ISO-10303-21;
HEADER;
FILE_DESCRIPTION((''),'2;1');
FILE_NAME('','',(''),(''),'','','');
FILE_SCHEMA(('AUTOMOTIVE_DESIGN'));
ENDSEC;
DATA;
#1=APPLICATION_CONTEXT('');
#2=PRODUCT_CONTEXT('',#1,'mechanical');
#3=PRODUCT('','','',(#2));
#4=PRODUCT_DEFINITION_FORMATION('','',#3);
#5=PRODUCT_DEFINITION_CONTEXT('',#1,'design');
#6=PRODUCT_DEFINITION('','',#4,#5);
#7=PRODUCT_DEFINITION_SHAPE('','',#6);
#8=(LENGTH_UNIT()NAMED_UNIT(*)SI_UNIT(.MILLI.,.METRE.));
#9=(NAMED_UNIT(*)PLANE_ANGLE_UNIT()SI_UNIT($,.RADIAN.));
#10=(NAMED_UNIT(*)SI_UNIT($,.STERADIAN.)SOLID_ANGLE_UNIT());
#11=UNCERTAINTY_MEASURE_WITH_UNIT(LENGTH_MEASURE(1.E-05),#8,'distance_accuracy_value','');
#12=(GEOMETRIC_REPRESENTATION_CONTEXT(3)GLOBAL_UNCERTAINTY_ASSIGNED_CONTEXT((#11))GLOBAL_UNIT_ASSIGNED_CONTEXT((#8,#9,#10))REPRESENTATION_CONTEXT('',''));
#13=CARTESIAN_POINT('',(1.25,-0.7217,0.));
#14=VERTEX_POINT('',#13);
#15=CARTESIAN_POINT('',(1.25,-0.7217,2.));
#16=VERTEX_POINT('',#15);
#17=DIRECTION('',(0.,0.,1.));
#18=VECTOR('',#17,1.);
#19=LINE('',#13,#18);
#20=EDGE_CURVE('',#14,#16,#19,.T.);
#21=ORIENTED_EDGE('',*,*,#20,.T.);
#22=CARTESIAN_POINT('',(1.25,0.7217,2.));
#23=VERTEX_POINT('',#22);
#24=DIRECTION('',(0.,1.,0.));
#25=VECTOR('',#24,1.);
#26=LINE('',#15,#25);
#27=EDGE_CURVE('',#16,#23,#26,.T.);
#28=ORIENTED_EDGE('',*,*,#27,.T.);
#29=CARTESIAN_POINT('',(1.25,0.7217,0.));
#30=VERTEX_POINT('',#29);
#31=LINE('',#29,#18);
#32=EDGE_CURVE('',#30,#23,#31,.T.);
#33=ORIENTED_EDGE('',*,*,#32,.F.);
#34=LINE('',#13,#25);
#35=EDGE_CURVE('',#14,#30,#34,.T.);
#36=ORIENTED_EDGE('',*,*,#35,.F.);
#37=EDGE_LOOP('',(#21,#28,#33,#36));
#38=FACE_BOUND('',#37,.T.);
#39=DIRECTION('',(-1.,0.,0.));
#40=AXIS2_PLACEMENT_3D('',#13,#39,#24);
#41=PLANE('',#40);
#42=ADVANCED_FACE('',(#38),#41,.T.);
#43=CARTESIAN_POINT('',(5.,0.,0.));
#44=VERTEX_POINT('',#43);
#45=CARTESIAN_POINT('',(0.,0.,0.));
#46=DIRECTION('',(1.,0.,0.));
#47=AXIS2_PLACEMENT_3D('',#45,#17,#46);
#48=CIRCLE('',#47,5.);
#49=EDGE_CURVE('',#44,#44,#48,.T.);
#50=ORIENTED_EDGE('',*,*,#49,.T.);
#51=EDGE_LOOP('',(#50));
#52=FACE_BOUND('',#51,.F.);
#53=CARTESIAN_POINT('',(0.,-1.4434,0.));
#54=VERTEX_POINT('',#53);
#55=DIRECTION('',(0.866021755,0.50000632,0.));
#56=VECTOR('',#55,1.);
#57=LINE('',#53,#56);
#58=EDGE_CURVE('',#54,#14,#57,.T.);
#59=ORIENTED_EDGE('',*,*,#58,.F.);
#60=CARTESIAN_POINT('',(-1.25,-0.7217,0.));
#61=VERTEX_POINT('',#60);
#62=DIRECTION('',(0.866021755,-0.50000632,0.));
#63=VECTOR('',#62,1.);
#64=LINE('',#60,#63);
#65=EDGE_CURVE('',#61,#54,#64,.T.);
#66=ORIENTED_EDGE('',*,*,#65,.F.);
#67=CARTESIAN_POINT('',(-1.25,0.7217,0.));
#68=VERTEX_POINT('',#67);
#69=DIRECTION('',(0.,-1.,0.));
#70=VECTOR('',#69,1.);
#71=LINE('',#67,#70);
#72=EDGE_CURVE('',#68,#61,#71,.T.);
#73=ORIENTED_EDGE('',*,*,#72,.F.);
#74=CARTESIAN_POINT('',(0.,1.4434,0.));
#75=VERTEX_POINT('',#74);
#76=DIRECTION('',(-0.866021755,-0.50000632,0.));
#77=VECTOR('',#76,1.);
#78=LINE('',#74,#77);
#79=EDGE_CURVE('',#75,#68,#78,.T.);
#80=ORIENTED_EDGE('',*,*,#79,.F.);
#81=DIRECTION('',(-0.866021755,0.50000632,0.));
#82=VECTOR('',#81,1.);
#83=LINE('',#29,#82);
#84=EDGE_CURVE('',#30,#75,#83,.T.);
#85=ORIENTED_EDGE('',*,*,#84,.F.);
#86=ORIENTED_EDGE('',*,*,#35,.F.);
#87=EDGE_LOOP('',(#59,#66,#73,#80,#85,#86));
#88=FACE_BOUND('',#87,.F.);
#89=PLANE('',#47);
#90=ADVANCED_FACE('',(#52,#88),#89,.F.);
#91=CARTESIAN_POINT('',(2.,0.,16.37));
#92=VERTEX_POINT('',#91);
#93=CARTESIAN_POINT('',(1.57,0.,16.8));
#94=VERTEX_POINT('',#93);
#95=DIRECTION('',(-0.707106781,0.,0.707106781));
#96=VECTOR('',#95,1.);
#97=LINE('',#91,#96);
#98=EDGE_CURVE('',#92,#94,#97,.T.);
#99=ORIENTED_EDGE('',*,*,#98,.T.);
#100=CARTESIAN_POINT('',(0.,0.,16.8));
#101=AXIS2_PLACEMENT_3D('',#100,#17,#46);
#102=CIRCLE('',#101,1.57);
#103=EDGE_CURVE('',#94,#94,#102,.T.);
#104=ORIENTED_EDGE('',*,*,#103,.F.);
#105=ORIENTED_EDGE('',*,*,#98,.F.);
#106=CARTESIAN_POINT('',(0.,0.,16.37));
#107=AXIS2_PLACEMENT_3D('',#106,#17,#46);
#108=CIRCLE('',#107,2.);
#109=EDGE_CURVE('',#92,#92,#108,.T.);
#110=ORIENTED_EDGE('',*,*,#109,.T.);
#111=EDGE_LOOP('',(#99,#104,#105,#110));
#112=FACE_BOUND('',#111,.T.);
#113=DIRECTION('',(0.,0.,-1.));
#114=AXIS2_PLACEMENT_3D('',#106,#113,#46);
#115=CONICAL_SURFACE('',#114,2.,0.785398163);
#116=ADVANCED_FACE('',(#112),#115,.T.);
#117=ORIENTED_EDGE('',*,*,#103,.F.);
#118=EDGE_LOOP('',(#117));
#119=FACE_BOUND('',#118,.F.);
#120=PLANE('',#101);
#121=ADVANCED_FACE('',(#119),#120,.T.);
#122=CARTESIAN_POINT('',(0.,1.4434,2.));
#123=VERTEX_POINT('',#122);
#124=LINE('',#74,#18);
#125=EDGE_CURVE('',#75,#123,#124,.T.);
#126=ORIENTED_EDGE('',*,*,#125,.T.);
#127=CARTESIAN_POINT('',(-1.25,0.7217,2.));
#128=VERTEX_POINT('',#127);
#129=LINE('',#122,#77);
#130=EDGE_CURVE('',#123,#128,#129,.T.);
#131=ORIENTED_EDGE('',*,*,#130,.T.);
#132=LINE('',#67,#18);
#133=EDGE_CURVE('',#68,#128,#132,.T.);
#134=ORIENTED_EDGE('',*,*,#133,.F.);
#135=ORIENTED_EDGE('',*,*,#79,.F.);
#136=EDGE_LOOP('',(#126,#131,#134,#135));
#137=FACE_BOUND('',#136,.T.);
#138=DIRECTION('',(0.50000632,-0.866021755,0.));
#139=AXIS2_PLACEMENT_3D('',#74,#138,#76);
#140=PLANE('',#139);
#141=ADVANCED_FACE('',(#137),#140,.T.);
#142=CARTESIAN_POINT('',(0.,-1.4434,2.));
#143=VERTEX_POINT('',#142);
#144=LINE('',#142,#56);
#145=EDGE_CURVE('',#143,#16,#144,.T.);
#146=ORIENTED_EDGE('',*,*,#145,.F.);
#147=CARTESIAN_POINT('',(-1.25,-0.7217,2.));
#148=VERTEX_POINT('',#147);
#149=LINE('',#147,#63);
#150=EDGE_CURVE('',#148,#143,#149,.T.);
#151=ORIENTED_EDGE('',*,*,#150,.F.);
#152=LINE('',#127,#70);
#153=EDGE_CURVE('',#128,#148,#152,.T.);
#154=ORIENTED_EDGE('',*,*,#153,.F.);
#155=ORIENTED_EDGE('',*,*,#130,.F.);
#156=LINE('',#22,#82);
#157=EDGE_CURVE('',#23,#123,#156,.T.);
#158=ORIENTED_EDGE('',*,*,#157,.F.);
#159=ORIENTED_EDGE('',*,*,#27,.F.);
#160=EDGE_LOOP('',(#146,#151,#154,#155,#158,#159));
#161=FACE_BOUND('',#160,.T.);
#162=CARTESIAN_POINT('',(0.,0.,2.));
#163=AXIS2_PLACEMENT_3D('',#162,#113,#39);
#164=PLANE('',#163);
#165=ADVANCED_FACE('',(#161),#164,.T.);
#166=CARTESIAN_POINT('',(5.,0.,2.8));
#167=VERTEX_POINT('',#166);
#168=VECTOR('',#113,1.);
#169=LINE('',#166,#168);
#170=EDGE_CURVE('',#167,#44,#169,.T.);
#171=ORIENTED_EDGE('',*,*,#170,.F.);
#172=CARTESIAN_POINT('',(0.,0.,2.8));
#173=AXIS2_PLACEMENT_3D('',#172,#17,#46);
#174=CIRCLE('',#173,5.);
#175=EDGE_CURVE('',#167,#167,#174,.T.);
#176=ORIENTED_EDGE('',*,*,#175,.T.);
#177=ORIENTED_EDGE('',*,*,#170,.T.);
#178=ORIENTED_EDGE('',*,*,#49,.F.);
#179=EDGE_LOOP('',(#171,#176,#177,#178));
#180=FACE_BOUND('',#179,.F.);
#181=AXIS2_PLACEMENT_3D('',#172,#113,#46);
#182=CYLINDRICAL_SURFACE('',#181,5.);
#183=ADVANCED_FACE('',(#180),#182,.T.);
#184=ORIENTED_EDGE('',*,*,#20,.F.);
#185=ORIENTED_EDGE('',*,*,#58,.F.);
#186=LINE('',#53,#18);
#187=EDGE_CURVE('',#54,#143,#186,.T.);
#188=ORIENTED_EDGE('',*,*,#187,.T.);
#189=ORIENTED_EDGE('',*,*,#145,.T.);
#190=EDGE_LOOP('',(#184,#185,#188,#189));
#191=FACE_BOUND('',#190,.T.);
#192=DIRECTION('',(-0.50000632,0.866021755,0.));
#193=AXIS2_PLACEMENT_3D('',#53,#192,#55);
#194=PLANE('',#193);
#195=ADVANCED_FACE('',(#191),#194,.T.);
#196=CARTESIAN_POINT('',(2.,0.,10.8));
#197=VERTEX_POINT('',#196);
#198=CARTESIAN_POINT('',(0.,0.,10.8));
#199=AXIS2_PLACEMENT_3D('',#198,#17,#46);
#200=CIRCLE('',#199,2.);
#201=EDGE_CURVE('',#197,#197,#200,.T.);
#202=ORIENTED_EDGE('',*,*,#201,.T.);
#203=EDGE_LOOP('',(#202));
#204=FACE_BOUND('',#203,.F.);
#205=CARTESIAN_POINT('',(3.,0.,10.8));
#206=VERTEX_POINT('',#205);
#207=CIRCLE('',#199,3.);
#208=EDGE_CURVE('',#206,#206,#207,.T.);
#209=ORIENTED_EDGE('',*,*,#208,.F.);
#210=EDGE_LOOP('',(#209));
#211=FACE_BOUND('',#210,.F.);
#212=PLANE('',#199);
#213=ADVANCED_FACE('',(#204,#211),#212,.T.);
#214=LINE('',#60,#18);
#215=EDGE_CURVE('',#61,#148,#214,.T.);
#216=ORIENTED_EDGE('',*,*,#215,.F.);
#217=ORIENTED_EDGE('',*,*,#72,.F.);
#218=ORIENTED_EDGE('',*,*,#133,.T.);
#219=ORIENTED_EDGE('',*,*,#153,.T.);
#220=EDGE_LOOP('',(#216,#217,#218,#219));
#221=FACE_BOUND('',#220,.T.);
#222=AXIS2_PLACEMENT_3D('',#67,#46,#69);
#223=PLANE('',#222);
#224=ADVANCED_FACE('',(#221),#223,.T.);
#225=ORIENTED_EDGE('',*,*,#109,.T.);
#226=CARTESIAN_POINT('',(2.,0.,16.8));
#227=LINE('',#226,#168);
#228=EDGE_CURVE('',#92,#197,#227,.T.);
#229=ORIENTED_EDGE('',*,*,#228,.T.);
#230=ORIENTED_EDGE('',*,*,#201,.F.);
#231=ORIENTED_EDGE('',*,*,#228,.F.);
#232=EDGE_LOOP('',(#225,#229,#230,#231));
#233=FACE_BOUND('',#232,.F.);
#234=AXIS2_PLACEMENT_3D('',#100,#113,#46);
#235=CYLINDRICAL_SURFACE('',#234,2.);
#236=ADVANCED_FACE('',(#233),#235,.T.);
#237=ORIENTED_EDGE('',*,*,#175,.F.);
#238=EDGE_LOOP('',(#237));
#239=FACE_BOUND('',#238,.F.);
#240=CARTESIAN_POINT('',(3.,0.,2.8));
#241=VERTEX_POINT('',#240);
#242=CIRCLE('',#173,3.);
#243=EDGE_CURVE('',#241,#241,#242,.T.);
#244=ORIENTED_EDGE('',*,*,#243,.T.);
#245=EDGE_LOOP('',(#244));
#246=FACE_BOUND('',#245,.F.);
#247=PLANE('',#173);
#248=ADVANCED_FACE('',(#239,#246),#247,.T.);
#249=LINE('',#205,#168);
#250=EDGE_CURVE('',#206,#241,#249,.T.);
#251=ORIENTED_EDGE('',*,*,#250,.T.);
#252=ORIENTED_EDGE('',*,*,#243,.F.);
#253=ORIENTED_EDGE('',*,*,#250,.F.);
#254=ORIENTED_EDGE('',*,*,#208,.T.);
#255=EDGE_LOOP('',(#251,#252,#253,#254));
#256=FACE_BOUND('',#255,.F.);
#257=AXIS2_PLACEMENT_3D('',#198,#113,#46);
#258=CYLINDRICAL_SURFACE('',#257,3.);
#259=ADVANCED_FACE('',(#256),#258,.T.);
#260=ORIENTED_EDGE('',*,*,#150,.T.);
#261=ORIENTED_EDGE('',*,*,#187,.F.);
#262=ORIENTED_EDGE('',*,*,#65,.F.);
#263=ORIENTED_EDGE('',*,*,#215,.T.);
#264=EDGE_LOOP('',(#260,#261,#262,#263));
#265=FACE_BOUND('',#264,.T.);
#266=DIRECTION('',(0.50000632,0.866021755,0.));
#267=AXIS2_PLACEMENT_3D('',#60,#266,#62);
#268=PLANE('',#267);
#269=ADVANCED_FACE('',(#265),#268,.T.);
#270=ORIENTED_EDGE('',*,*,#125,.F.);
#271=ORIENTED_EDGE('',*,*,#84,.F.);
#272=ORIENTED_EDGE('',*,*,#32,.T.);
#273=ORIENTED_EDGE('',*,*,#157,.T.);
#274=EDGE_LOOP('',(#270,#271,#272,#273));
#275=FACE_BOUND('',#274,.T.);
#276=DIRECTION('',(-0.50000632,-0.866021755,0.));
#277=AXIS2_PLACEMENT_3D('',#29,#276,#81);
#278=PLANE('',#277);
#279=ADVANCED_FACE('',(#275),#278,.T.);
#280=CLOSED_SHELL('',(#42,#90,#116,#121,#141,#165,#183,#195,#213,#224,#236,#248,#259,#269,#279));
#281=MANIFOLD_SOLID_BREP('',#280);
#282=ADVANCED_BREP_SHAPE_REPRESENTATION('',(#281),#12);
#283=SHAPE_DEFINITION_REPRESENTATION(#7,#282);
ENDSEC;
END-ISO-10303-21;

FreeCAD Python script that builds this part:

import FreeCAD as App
import Part
import Sketcher
from FreeCAD import Vector
Q = App.Units.Quantity


def edges_at(feature, points):
    """Names of the edges that pass closest to the given points."""
    edges = feature.Shape.Edges
    near = lambda p: min(range(len(edges)), key=lambda i: edges[i].distToShape(Part.Vertex(*p))[0])
    return sorted({f"Edge{near(p) + 1}" for p in points})

doc = App.newDocument("Part")
body = doc.addObject("PartDesign::Body", "Body")

sketch1 = doc.addObject("Sketcher::SketchObject", "Sketch")
body.addObject(sketch1)
sketch1.AttachmentSupport = (doc.XZ_Plane, [""])
sketch1.MapMode = "FlatFace"
sketch1.addGeometry([
    Part.LineSegment(Vector(5, 0, 0), Vector(0, 0, 0)),
    Part.LineSegment(Vector(0, 0, 0), Vector(0, 16.8, 0)),
    Part.LineSegment(Vector(0, 16.8, 0), Vector(2, 16.8, 0)),
    Part.LineSegment(Vector(2, 16.8, 0), Vector(2, 10.8, 0)),
    Part.LineSegment(Vector(2, 10.8, 0), Vector(3, 10.8, 0)),
    Part.LineSegment(Vector(3, 10.8, 0), Vector(3, 2.8, 0)),
    Part.LineSegment(Vector(3, 2.8, 0), Vector(5, 2.8, 0)),
    Part.LineSegment(Vector(5, 2.8, 0), Vector(5, 0, 0)),
], False)
sketch1.addConstraint([
    Sketcher.Constraint("Coincident", 0, 2, 1, 1),
    Sketcher.Constraint("Coincident", 1, 2, 2, 1),
    Sketcher.Constraint("Coincident", 2, 2, 3, 1),
    Sketcher.Constraint("Coincident", 3, 2, 4, 1),
    Sketcher.Constraint("Coincident", 4, 2, 5, 1),
    Sketcher.Constraint("Coincident", 5, 2, 6, 1),
    Sketcher.Constraint("Coincident", 6, 2, 7, 1),
    Sketcher.Constraint("Coincident", 7, 2, 0, 1),
    Sketcher.Constraint("Horizontal", 0),
    Sketcher.Constraint("Vertical", 1),
    Sketcher.Constraint("Horizontal", 2),
    Sketcher.Constraint("Vertical", 3),
    Sketcher.Constraint("Horizontal", 4),
    Sketcher.Constraint("Vertical", 5),
    Sketcher.Constraint("Horizontal", 6),
    Sketcher.Constraint("Vertical", 7),
    Sketcher.Constraint("Coincident", 0, 2, -1, 1),
    Sketcher.Constraint("Equal", 2, 6),
    Sketcher.Constraint("DistanceY", 3, 2, 3, 1, 6.0),
    Sketcher.Constraint("DistanceY", 5, 2, 5, 1, 8.0),
    Sketcher.Constraint("DistanceY", 7, 2, 7, 1, 2.8),
    Sketcher.Constraint("DistanceX", 0, 2, 0, 1, 5.0),
    Sketcher.Constraint("DistanceX", 2, 1, 2, 2, 2.0),
])
revolution = doc.addObject("PartDesign::Revolution", "Revolution")
body.addObject(revolution)
revolution.Profile = sketch1
revolution.ReferenceAxis = (sketch1, ["V_Axis"])
revolution.Angle = 360

sketch2 = doc.addObject("Sketcher::SketchObject", "Sketch001")
body.addObject(sketch2)
sketch2.AttachmentSupport = (doc.XY_Plane, [""])
sketch2.MapMode = "FlatFace"
sketch2.addGeometry([
    Part.LineSegment(Vector(-1.25, 0.7217, 0), Vector(0, 1.4434, 0)),
    Part.LineSegment(Vector(0, 1.4434, 0), Vector(1.25, 0.7217, 0)),
    Part.LineSegment(Vector(1.25, 0.7217, 0), Vector(1.25, -0.7217, 0)),
    Part.LineSegment(Vector(1.25, -0.7217, 0), Vector(0, -1.4434, 0)),
    Part.LineSegment(Vector(0, -1.4434, 0), Vector(-1.25, -0.7217, 0)),
    Part.LineSegment(Vector(-1.25, -0.7217, 0), Vector(-1.25, 0.7217, 0)),
], False)
sketch2.addConstraint([
    Sketcher.Constraint("Coincident", 0, 2, 1, 1),
    Sketcher.Constraint("Coincident", 1, 2, 2, 1),
    Sketcher.Constraint("Coincident", 2, 2, 3, 1),
    Sketcher.Constraint("Coincident", 3, 2, 4, 1),
    Sketcher.Constraint("Coincident", 4, 2, 5, 1),
    Sketcher.Constraint("Coincident", 5, 2, 0, 1),
    Sketcher.Constraint("Vertical", 2),
    Sketcher.Constraint("Vertical", 5),
    Sketcher.Constraint("Symmetric", 0, 2, 3, 2, -1, 1),
    Sketcher.Constraint("Symmetric", 1, 2, 4, 2, -1, 1),
    Sketcher.Constraint("PointOnObject", 0, 2, -2),
    Sketcher.Constraint("Parallel", 0, 3),
    Sketcher.Constraint("Horizontal", 2, 2, 4, 2),
    Sketcher.Constraint("DistanceX", 4, 2, 2, 2, 2.5),
    Sketcher.Constraint("Angle", 0, Q("30.0004 deg")),
    Sketcher.Constraint("DistanceY", 2, 2, 2, 1, 1.4434),
])
pocket1 = doc.addObject("PartDesign::Pocket", "Pocket")
body.addObject(pocket1)
pocket1.Profile = sketch2
pocket1.Length = 2
pocket1.Reversed = True
doc.recompute()

chamfer = doc.addObject("PartDesign::Chamfer", "Chamfer")
body.addObject(chamfer)
chamfer.Base = (pocket1, edges_at(pocket1, [(-2, 0, 16.8)]))
chamfer.Size = 0.43

doc.recompute()
